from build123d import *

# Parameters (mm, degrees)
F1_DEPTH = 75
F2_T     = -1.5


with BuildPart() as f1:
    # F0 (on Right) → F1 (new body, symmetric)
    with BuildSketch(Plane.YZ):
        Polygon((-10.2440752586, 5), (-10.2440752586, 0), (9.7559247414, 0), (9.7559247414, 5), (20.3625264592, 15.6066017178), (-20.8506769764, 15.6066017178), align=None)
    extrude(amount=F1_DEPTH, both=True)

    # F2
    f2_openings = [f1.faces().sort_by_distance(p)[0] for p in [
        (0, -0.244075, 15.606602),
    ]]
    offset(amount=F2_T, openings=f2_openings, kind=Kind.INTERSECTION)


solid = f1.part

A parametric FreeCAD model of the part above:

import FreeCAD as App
import Part
import Sketcher
from FreeCAD import Vector
Q = App.Units.Quantity


def faces_at(feature, points):
    """Names of the faces that lie closest to the given points."""
    faces = feature.Shape.Faces
    near = lambda p: min(range(len(faces)), key=lambda i: faces[i].distToShape(Part.Vertex(*p))[0])
    return sorted({f"Face{near(p) + 1}" for p in points})


def add_polygon(sketch, points):
    """Adds a closed chain of lines whose ends are joined by coincident constraints."""
    first, n = sketch.GeometryCount, len(points)
    for a, b in zip(points, points[1:] + points[:1]):
        sketch.addGeometry(Part.LineSegment(App.Vector(*a, 0), App.Vector(*b, 0)), False)
    for i in range(n):
        sketch.addConstraint(Sketcher.Constraint("Coincident", first + i, 2, first + (i + 1) % n, 1))

doc = App.newDocument("Part")
body = doc.addObject("PartDesign::Body", "Body")

sketch1 = body.newObject("Sketcher::SketchObject", "Sketch")
sketch1.AttachmentSupport = (doc.getObject("YZ_Plane"), [""])
sketch1.MapMode = "FlatFace"
add_polygon(sketch1, [(-10.244075, 5), (-10.244075, 0), (9.755925, 0), (9.755925, 5), (20.362526, 15.606602), (-20.850677, 15.606602)])
sketch1.addConstraint([
    Sketcher.Constraint("Vertical", 0),
    Sketcher.Constraint("Horizontal", 1),
    Sketcher.Constraint("Vertical", 2),
    Sketcher.Constraint("Horizontal", 4),
    Sketcher.Constraint("PointOnObject", 0, 2, -1),
    Sketcher.Constraint("Perpendicular", 3, 5),
    Sketcher.Constraint("Horizontal", 2, 2, 5, 2),
    Sketcher.Constraint("Equal", 3, 5),
    Sketcher.Constraint("DistanceX", 1, 1, 1, 2, Q("20 mm")),
    Sketcher.Constraint("DistanceY", 0, 2, 0, 1, Q("5 mm")),
    Sketcher.Constraint("Distance", 3, Q("15 mm")),
    Sketcher.Constraint("DistanceX", 0, 2, -1, 1, Q("10.244075 mm")),
])
pad1 = body.newObject("PartDesign::Pad", "Pad")
pad1.Profile = sketch1
pad1.Length = 150
pad1.Midplane = True
doc.recompute()

thickness = body.newObject("PartDesign::Thickness", "Thickness")
thickness.Base = (pad1, faces_at(pad1, [(0, -0.244, 15.607)]))
thickness.Value = 1.5
thickness.Reversed = True
thickness.Join = "Intersection"

doc.recompute()
